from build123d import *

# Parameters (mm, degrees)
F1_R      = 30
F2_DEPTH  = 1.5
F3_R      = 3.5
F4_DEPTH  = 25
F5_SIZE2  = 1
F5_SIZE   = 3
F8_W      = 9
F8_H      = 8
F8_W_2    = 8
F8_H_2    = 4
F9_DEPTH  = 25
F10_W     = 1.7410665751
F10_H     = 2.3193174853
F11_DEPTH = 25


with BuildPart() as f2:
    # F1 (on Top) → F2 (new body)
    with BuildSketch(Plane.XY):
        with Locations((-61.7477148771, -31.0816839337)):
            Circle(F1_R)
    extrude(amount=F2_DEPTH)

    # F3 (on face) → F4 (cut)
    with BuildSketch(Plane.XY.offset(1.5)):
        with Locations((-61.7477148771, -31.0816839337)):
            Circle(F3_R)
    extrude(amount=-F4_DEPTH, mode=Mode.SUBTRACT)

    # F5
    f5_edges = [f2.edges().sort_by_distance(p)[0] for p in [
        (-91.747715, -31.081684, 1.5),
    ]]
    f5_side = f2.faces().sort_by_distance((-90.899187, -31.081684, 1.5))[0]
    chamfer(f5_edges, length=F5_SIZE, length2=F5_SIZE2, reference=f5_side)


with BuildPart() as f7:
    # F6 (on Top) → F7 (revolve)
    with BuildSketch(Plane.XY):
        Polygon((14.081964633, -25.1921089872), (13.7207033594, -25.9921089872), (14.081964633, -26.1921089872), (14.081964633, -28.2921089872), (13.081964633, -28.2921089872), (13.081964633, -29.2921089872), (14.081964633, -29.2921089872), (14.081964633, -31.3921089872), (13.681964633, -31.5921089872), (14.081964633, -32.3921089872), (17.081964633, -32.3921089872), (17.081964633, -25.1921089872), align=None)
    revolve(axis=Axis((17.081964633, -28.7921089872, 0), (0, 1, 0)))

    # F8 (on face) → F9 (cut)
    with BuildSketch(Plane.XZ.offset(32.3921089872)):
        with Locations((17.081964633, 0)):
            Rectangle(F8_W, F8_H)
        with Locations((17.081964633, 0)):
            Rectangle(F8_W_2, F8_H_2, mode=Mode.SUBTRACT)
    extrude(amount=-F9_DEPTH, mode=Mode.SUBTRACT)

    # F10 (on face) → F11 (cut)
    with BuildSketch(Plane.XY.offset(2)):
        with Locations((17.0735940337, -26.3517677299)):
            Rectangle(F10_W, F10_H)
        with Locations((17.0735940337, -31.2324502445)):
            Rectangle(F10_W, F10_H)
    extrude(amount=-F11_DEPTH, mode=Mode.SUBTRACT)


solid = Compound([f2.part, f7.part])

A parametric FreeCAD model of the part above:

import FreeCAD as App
import Part
import Sketcher
from FreeCAD import Vector
Q = App.Units.Quantity


def edges_at(feature, points):
    """Names of the edges that pass closest to the given points."""
    edges = feature.Shape.Edges
    near = lambda p: min(range(len(edges)), key=lambda i: edges[i].distToShape(Part.Vertex(*p))[0])
    return sorted({f"Edge{near(p) + 1}" for p in points})


def add_polygon(sketch, points):
    """Adds a closed chain of lines whose ends are joined by coincident constraints."""
    first, n = sketch.GeometryCount, len(points)
    for a, b in zip(points, points[1:] + points[:1]):
        sketch.addGeometry(Part.LineSegment(App.Vector(*a, 0), App.Vector(*b, 0)), False)
    for i in range(n):
        sketch.addConstraint(Sketcher.Constraint("Coincident", first + i, 2, first + (i + 1) % n, 1))

doc = App.newDocument("Part")
body = doc.addObject("PartDesign::Body", "Body")

sketch1 = body.newObject("Sketcher::SketchObject", "Sketch")
sketch1.AttachmentSupport = (doc.getObject("XY_Plane"), [""])
sketch1.MapMode = "FlatFace"
sketch1.addGeometry(Part.Circle(Vector(-62, -31, 0), Vector(0, 0, 1), 30), False)
sketch1.addConstraint([
    Sketcher.Constraint("Diameter", 0, Q("60 mm")),
    Sketcher.Constraint("DistanceX", 0, 3, -1, 1, Q("61.747715 mm")),
    Sketcher.Constraint("DistanceY", 0, 3, -1, 1, Q("31.081684 mm")),
])
pad1 = body.newObject("PartDesign::Pad", "Pad")
pad1.Profile = sketch1
pad1.Length = 1.5

sketch2 = body.newObject("Sketcher::SketchObject", "Sketch001")
sketch2.AttachmentSupport = (doc.getObject("XY_Plane"), [""])
sketch2.MapMode = "FlatFace"
sketch2.AttachmentOffset = App.Placement(Vector(0, 0, 1.5), App.Rotation())
sketch2.addGeometry(Part.Circle(Vector(-61.7, -31.1, 0), Vector(0, 0, 1), 3.5), False)
sketch2.addConstraint([
    Sketcher.Constraint("Diameter", 0, Q("7 mm")),
    Sketcher.Constraint("DistanceX", 0, 3, -1, 1, Q("61.747715 mm")),
    Sketcher.Constraint("DistanceY", 0, 3, -1, 1, Q("31.081684 mm")),
])
pocket1 = body.newObject("PartDesign::Pocket", "Pocket")
pocket1.Profile = sketch2
pocket1.Length = 25
doc.recompute()

chamfer = body.newObject("PartDesign::Chamfer", "Chamfer")
chamfer.Base = (pocket1, edges_at(pocket1, [(-91.748, -31.082, 1.5)]))
chamfer.ChamferType = "Two distances"
chamfer.Size = 3
chamfer.Size2 = 1
chamfer.FlipDirection = True
body2 = doc.addObject("PartDesign::Body", "Body001")

sketch3 = body2.newObject("Sketcher::SketchObject", "Sketch002")
sketch3.AttachmentSupport = (doc.getObject("XY_Plane001"), [""])
sketch3.MapMode = "FlatFace"
add_polygon(sketch3, [(14.08, -25.19), (13.72, -25.99), (14.08, -26.19), (14.08, -28.29), (13.08, -28.29), (13.08, -29.29), (14.08, -29.29), (14.08, -31.39), (13.68, -31.59), (14.08, -32.39), (17.08, -32.39), (17.08, -25.19)])
sketch3.addGeometry(Part.LineSegment(Vector(17.08, -32.39, 0), Vector(17.08, -25.19, 0)), True)
sketch3.addConstraint([
    Sketcher.Constraint("Vertical", 2),
    Sketcher.Constraint("Horizontal", 3),
    Sketcher.Constraint("Vertical", 4),
    Sketcher.Constraint("Horizontal", 5),
    Sketcher.Constraint("Vertical", 6),
    Sketcher.Constraint("Horizontal", 9),
    Sketcher.Constraint("Vertical", 10),
    Sketcher.Constraint("Horizontal", 11),
    Sketcher.Constraint("Vertical", 12),
    Sketcher.Constraint("Coincident", 12, 1, 9, 2),
    Sketcher.Constraint("Perpendicular", 7, 8),
    Sketcher.Constraint("Horizontal", 11, 2, 12, 2),
    Sketcher.Constraint("Vertical", 2, 2, 5, 2),
    Sketcher.Constraint("Vertical", 6, 2, 8, 2),
    Sketcher.Constraint("Vertical", 8, 2, 11, 2),
    Sketcher.Constraint("Equal", 5, 4),
    Sketcher.Constraint("Equal", 2, 6),
    Sketcher.Constraint("DistanceX", 3, 2, 3, 1, Q("1 mm")),
    Sketcher.Constraint("DistanceX", 9, 1, 9, 2, Q("3 mm")),
    Sketcher.Constraint("DistanceY", 2, 2, 2, 1, Q("2.1 mm")),
    Sketcher.Constraint("DistanceY", 10, 1, 10, 2, Q("7.2 mm")),
    Sketcher.Constraint("DistanceY", 8, 2, 6, 2, Q("1 mm")),
    Sketcher.Constraint("DistanceY", 1, 2, 0, 2, Q("0.2 mm")),
    Sketcher.Constraint("DistanceX", 7, 2, 6, 2, Q("0.4 mm")),
    Sketcher.Constraint("Distance", 1, Q("0.412928 mm")),
    Sketcher.Constraint("DistanceY", 0, 2, -1, 1, Q("25.992109 mm")),
    Sketcher.Constraint("DistanceX", -1, 1, 0, 2, Q("13.720703 mm")),
])
revolution = body2.newObject("PartDesign::Revolution", "Revolution")
revolution.Profile = sketch3
revolution.ReferenceAxis = (sketch3, ["Axis0"])
revolution.Angle = 360

sketch4 = body2.newObject("Sketcher::SketchObject", "Sketch003")
sketch4.AttachmentSupport = (doc.getObject("XZ_Plane001"), [""])
sketch4.MapMode = "FlatFace"
sketch4.AttachmentOffset = App.Placement(Vector(0, 0, 32.392109), App.Rotation())
add_polygon(sketch4, [(12.6, 4), (12.6, -4), (21.6, -4), (21.6, 4)])
add_polygon(sketch4, [(21.1, -2), (13.1, -2), (13.1, 2), (21.1, 2)])
sketch4.addConstraint([
    Sketcher.Constraint("Vertical", 0),
    Sketcher.Constraint("Horizontal", 1),
    Sketcher.Constraint("Vertical", 2),
    Sketcher.Constraint("Horizontal", 3),
    Sketcher.Constraint("Horizontal", 4),
    Sketcher.Constraint("Vertical", 5),
    Sketcher.Constraint("Horizontal", 6),
    Sketcher.Constraint("Vertical", 7),
    Sketcher.Constraint("Equal", 6, 0),
    Sketcher.Constraint("DistanceX", 1, 1, 1, 2, Q("9 mm")),
    Sketcher.Constraint("DistanceX", 4, 2, 4, 1, Q("8 mm")),
    Sketcher.Constraint("DistanceY", 5, 1, 5, 2, Q("4 mm")),
    Sketcher.Constraint("DistanceY", 0, 2, -1, 1, Q("4 mm")),
    Sketcher.Constraint("DistanceY", 4, 2, -1, 1, Q("2 mm")),
    Sketcher.Constraint("DistanceX", 0, 2, 4, 2, Q("0.5 mm")),
    Sketcher.Constraint("DistanceX", -1, 1, 0, 2, Q("12.581965 mm")),
])
pocket2 = body2.newObject("PartDesign::Pocket", "Pocket001")
pocket2.Profile = sketch4
pocket2.Length = 25

sketch5 = body2.newObject("Sketcher::SketchObject", "Sketch004")
sketch5.AttachmentSupport = (doc.getObject("XY_Plane001"), [""])
sketch5.MapMode = "FlatFace"
sketch5.AttachmentOffset = App.Placement(Vector(0, 0, 2), App.Rotation())
add_polygon(sketch5, [(16.2, -25.2), (16.2, -27.5), (17.9, -27.5), (17.9, -25.2)])
add_polygon(sketch5, [(16.2, -30.1), (16.2, -32.4), (17.9, -32.4), (17.9, -30.1)])
sketch5.addConstraint([
    Sketcher.Constraint("Vertical", 0),
    Sketcher.Constraint("Horizontal", 1),
    Sketcher.Constraint("Vertical", 2),
    Sketcher.Constraint("Horizontal", 3),
    Sketcher.Constraint("Vertical", 4),
    Sketcher.Constraint("Horizontal", 5),
    Sketcher.Constraint("Vertical", 6),
    Sketcher.Constraint("Horizontal", 7),
    Sketcher.Constraint("Vertical", 3, 2, 4, 2),
    Sketcher.Constraint("Vertical", 2, 2, 5, 2),
    Sketcher.Constraint("Equal", 2, 4),
    Sketcher.Constraint("DistanceY", 4, 2, 3, 2, Q("7.2 mm")),
    Sketcher.Constraint("DistanceX", 1, 1, 1, 2, Q("1.741067 mm")),
    Sketcher.Constraint("DistanceY", 0, 2, 0, 1, Q("2.319317 mm")),
    Sketcher.Constraint("DistanceX", -1, 1, 0, 2, Q("16.203061 mm")),
    Sketcher.Constraint("DistanceY", 2, 2, -1, 1, Q("25.192109 mm")),
])
pocket3 = body2.newObject("PartDesign::Pocket", "Pocket002")
pocket3.Profile = sketch5
pocket3.Length = 25

doc.recompute()
